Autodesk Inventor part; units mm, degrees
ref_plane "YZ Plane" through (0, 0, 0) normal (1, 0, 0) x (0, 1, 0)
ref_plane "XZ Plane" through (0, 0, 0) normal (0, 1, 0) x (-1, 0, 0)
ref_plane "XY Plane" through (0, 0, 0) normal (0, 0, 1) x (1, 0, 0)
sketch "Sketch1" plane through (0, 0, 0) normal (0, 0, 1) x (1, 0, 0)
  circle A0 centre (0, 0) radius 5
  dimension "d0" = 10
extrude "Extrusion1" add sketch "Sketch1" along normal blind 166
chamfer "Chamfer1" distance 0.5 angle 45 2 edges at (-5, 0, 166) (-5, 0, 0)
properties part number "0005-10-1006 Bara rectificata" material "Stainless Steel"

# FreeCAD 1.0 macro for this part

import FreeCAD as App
import Part
import Sketcher
Q = App.Units.Quantity


def edges_at(feature, points):
    """Names of the edges that pass closest to the given points."""
    edges = feature.Shape.Edges
    near = lambda p: min(range(len(edges)), key=lambda i: edges[i].distToShape(Part.Vertex(*p))[0])
    return sorted({f"Edge{near(p) + 1}" for p in points})

doc = App.newDocument("Part")
params = doc.addObject("Spreadsheet::Sheet", "Params")
for row, (alias, value) in enumerate([
    ("sketch1_diameter", "10 mm"),
    ("pad1_length", "166 mm"),
    ("chamfer_size", "0.5 mm"),
], start=1):
    params.set(f"A{row}", alias)
    params.set(f"B{row}", "=" + value)
    params.setAlias(f"B{row}", alias)

body = doc.addObject("PartDesign::Body", "Body")

# Sketch on XY plane
sketch1 = doc.addObject("Sketcher::SketchObject", "Sketch")
body.addObject(sketch1)
sketch1.AttachmentSupport = (doc.XY_Plane, [""])
sketch1.MapMode = "FlatFace"
sketch1.addGeometry(Part.Circle(App.Vector(0, 0, 0), App.Vector(0, 0, 1), 5), False)
sketch1.addConstraint([
    Sketcher.Constraint("Coincident", 0, 3, -1, 1),
    Sketcher.Constraint("Diameter", 0, Q("10 mm")),
])
sketch1.setExpression("Constraints[1]", "Params.sketch1_diameter")
pad1 = doc.addObject("PartDesign::Pad", "Pad")
body.addObject(pad1)
pad1.Profile = sketch1
pad1.setExpression("Length", "Params.pad1_length")
doc.recompute()

chamfer = doc.addObject("PartDesign::Chamfer", "Chamfer")
body.addObject(chamfer)
chamfer.Base = (pad1, edges_at(pad1, [(-5, 0, 166), (-5, 0, 0)]))
chamfer.setExpression("Size", "Params.chamfer_size")

doc.recompute()
